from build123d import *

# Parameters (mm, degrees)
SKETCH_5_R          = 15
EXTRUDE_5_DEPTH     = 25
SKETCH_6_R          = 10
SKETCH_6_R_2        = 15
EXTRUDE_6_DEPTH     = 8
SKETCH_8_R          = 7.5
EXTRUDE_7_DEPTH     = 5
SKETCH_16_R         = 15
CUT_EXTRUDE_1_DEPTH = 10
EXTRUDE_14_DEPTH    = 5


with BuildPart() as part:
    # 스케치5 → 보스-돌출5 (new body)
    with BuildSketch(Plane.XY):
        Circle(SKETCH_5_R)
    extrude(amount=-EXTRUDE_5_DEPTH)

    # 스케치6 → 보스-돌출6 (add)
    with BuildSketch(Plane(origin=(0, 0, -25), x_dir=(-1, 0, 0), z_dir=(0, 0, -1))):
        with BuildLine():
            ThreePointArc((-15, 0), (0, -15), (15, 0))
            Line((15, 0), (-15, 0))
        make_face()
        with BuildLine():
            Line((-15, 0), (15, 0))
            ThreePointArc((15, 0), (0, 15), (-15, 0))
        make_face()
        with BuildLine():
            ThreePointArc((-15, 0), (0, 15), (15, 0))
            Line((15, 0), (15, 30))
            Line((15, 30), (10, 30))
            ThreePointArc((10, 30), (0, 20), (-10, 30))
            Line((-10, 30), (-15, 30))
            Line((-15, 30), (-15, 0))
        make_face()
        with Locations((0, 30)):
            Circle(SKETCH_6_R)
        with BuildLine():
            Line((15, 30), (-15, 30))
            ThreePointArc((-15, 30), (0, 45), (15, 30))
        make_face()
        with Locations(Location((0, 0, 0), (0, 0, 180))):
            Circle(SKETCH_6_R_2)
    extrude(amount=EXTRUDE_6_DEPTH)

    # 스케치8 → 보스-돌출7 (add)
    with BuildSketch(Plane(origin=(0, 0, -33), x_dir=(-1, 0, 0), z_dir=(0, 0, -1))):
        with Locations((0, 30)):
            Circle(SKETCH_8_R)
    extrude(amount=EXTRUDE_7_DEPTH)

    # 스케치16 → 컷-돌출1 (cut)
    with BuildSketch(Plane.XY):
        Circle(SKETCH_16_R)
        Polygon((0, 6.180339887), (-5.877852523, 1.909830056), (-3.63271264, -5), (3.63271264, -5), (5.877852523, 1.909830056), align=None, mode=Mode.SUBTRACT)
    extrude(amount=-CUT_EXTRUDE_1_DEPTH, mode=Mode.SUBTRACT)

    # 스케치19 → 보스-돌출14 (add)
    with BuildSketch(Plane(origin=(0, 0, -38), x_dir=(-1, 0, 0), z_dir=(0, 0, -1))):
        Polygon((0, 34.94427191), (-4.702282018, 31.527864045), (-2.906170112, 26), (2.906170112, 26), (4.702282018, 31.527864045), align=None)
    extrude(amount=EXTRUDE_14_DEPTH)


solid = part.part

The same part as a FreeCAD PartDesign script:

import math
import FreeCAD as App
import Part
import Sketcher
Q = App.Units.Quantity


def add_polygon(sketch, points):
    """Adds a closed chain of lines whose ends are joined by coincident constraints."""
    first, n = sketch.GeometryCount, len(points)
    for a, b in zip(points, points[1:] + points[:1]):
        sketch.addGeometry(Part.LineSegment(App.Vector(*a, 0), App.Vector(*b, 0)), False)
    for i in range(n):
        sketch.addConstraint(Sketcher.Constraint("Coincident", first + i, 2, first + (i + 1) % n, 1))

doc = App.newDocument("Part")
params = doc.addObject("Spreadsheet::Sheet", "Params")
for row, (alias, value) in enumerate([
    ("sketch1_diameter", "30 mm"),
    ("pad1_length", "25 mm"),
    ("sketch2_radius", "15 mm"),
    ("sketch2_height", "30 mm"),
    ("pad2_length", "8 mm"),
    ("sketch3_diameter", "15 mm"),
    ("pad3_length", "5 mm"),
    ("sketch4_diameter", "30 mm"),
    ("pocket1_length", "10 mm"),
    ("pad4_length", "5 mm"),
], start=1):
    params.set(f"A{row}", alias)
    params.set(f"B{row}", "=" + value)
    params.setAlias(f"B{row}", alias)

body = doc.addObject("PartDesign::Body", "Body")

# Sketch on XY plane
sketch1 = doc.addObject("Sketcher::SketchObject", "Sketch")
body.addObject(sketch1)
sketch1.AttachmentSupport = (doc.XY_Plane, [""])
sketch1.MapMode = "FlatFace"
sketch1.addGeometry(Part.Circle(App.Vector(0, 0, 0), App.Vector(0, 0, 1), 15), False)
sketch1.addConstraint(Sketcher.Constraint("Coincident", 0, 3, -1, 1))
sketch1.addConstraint(Sketcher.Constraint("Diameter", 0, 30.0))
sketch1.setExpression("Constraints[1]", "Params.sketch1_diameter")
pad1 = doc.addObject("PartDesign::Pad", "Pad")
body.addObject(pad1)
pad1.Profile = sketch1
pad1.setExpression("Length", "Params.pad1_length")
pad1.Reversed = True

# Sketch on XY plane
sketch2 = doc.addObject("Sketcher::SketchObject", "Sketch001")
body.addObject(sketch2)
sketch2.AttachmentSupport = (doc.XY_Plane, [""])
sketch2.MapMode = "FlatFace"
sketch2.AttachmentOffset = App.Placement(App.Vector(0, 0, -25), App.Rotation())
sketch2.addGeometry(Part.ArcOfCircle(Part.Circle(App.Vector(0, 30, 0), App.Vector(0, 0, 1), 15), math.radians(0), math.radians(180)), False)
sketch2.addGeometry(Part.LineSegment(App.Vector(15, 30, 0), App.Vector(15, 0, 0)), False)
sketch2.addGeometry(Part.ArcOfCircle(Part.Circle(App.Vector(0, 0, 0), App.Vector(0, 0, 1), 15), math.radians(180), math.radians(360)), False)
sketch2.addGeometry(Part.LineSegment(App.Vector(-15, 0, 0), App.Vector(-15, 30, 0)), False)
sketch2.addConstraint(Sketcher.Constraint("Tangent", 0, 1, 1, 1))
sketch2.addConstraint(Sketcher.Constraint("Tangent", 1, 2, 2, 2))
sketch2.addConstraint(Sketcher.Constraint("Tangent", 2, 1, 3, 1))
sketch2.addConstraint(Sketcher.Constraint("Tangent", 3, 2, 0, 2))
sketch2.addConstraint(Sketcher.Constraint("Vertical", 1))
sketch2.addConstraint(Sketcher.Constraint("Vertical", 3))
sketch2.addConstraint(Sketcher.Constraint("Coincident", 2, 3, -1, 1))
sketch2.addConstraint(Sketcher.Constraint("Radius", 0, 15.0))
sketch2.addConstraint(Sketcher.Constraint("DistanceY", 1, 2, 1, 1, 30.0))
sketch2.setExpression("Constraints[7]", "Params.sketch2_radius")
sketch2.setExpression("Constraints[8]", "Params.sketch2_height")
pad2 = doc.addObject("PartDesign::Pad", "Pad001")
body.addObject(pad2)
pad2.Profile = sketch2
pad2.setExpression("Length", "Params.pad2_length")
pad2.Reversed = True

# Sketch on XY plane
sketch3 = doc.addObject("Sketcher::SketchObject", "Sketch002")
body.addObject(sketch3)
sketch3.AttachmentSupport = (doc.XY_Plane, [""])
sketch3.MapMode = "FlatFace"
sketch3.AttachmentOffset = App.Placement(App.Vector(0, 0, -33), App.Rotation())
sketch3.addGeometry(Part.Circle(App.Vector(0, 30, 0), App.Vector(0, 0, 1), 8), False)
sketch3.addConstraint(Sketcher.Constraint("PointOnObject", 0, 3, -2))
sketch3.addConstraint(Sketcher.Constraint("Diameter", 0, 15.0))
sketch3.addConstraint(Sketcher.Constraint("DistanceY", -1, 1, 0, 3, 30.0))
sketch3.setExpression("Constraints[1]", "Params.sketch3_diameter")
pad3 = doc.addObject("PartDesign::Pad", "Pad002")
body.addObject(pad3)
pad3.Profile = sketch3
pad3.setExpression("Length", "Params.pad3_length")
pad3.Reversed = True

# Sketch on XY plane
sketch4 = doc.addObject("Sketcher::SketchObject", "Sketch003")
body.addObject(sketch4)
sketch4.AttachmentSupport = (doc.XY_Plane, [""])
sketch4.MapMode = "FlatFace"
sketch4.addGeometry(Part.Circle(App.Vector(0, 0, 0), App.Vector(0, 0, 1), 15), False)  # 0
add_polygon(sketch4, [(-6, 2), (0, 6), (6, 2), (4, -5), (-4, -5)])  # lines 1-5
sketch4.addConstraint(Sketcher.Constraint("Horizontal", 4))
sketch4.addConstraint(Sketcher.Constraint("Coincident", 0, 3, -1, 1))
sketch4.addConstraint(Sketcher.Constraint("Symmetric", 2, 2, 5, 2, -2))
sketch4.addConstraint(Sketcher.Constraint("PointOnObject", 1, 2, -2))
sketch4.addConstraint(Sketcher.Constraint("Equal", 2, 3))
sketch4.addConstraint(Sketcher.Constraint("Equal", 3, 5))
sketch4.addConstraint(Sketcher.Constraint("Diameter", 0, 30.0))
sketch4.addConstraint(Sketcher.Constraint("Angle", 1, Q("36 deg")))
sketch4.addConstraint(Sketcher.Constraint("Angle", 3, Q("-108 deg")))
sketch4.addConstraint(Sketcher.Constraint("DistanceY", 3, 2, -1, 1, 5.0))
sketch4.addConstraint(Sketcher.Constraint("DistanceX", 4, 2, 4, 1, 7.265425))
sketch4.setExpression("Constraints[11]", "Params.sketch4_diameter")
pocket1 = doc.addObject("PartDesign::Pocket", "Pocket")
body.addObject(pocket1)
pocket1.Profile = sketch4
pocket1.setExpression("Length", "Params.pocket1_length")

# Sketch on XY plane
sketch5 = doc.addObject("Sketcher::SketchObject", "Sketch004")
body.addObject(sketch5)
sketch5.AttachmentSupport = (doc.XY_Plane, [""])
sketch5.MapMode = "FlatFace"
sketch5.AttachmentOffset = App.Placement(App.Vector(0, 0, -38), App.Rotation())
add_polygon(sketch5, [(0, 35), (5, 32), (3, 26), (-3, 26), (-5, 32)])  # lines 0-4
sketch5.addConstraint(Sketcher.Constraint("Horizontal", 2))
sketch5.addConstraint(Sketcher.Constraint("Symmetric", 0, 2, 3, 2, -2))
sketch5.addConstraint(Sketcher.Constraint("PointOnObject", 4, 2, -2))
sketch5.addConstraint(Sketcher.Constraint("Equal", 0, 1))
sketch5.addConstraint(Sketcher.Constraint("Equal", 1, 3))
sketch5.addConstraint(Sketcher.Constraint("Angle", 0, Q("-36 deg")))
sketch5.addConstraint(Sketcher.Constraint("Angle", 1, Q("-108 deg")))
sketch5.addConstraint(Sketcher.Constraint("DistanceY", -1, 1, 1, 2, 26.0))
sketch5.addConstraint(Sketcher.Constraint("DistanceX", 2, 2, 2, 1, 5.81234))
pad4 = doc.addObject("PartDesign::Pad", "Pad003")
body.addObject(pad4)
pad4.Profile = sketch5
pad4.setExpression("Length", "Params.pad4_length")
pad4.Reversed = True

doc.recompute()
